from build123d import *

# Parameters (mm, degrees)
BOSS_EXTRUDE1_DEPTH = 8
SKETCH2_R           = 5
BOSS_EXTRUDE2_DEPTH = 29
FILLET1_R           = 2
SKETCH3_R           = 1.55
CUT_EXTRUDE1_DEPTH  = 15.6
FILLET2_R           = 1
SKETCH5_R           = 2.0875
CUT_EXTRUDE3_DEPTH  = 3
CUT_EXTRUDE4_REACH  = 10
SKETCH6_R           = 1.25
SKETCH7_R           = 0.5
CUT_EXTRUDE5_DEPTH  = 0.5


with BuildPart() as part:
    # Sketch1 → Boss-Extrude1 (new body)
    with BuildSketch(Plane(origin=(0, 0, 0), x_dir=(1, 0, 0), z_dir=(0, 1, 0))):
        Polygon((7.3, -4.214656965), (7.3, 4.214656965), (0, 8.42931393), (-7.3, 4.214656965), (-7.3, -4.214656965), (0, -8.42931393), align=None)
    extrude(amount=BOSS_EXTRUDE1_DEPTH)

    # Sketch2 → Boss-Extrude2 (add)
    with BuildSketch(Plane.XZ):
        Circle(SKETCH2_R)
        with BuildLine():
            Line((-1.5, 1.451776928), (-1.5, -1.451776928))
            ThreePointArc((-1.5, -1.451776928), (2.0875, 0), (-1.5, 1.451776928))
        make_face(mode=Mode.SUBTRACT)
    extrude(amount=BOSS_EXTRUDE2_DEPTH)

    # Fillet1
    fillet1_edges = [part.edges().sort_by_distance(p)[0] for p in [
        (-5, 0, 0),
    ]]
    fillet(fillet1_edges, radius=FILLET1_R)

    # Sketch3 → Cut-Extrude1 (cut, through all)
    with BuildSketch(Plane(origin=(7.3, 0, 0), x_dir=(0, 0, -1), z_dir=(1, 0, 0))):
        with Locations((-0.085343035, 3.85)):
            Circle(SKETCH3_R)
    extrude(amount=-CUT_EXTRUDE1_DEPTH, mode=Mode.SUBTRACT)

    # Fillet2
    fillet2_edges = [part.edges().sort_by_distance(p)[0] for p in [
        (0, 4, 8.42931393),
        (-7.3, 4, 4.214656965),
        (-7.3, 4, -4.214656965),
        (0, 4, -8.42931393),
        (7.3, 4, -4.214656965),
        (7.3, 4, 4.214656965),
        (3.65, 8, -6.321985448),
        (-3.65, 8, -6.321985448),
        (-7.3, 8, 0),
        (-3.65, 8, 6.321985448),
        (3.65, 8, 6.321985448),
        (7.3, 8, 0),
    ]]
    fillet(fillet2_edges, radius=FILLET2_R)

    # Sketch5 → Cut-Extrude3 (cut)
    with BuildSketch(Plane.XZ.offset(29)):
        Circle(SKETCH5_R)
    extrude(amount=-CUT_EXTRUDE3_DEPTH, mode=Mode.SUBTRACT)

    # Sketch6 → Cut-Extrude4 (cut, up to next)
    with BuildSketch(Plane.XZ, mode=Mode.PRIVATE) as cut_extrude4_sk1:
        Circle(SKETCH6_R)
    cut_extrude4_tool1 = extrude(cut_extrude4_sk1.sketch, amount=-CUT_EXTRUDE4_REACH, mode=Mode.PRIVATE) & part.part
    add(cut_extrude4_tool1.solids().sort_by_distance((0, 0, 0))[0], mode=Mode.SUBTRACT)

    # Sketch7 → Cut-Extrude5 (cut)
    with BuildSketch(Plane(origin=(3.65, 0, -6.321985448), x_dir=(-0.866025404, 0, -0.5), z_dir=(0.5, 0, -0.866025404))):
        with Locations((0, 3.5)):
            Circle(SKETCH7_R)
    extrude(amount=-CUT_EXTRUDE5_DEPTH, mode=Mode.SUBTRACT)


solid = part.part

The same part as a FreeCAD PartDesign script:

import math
import FreeCAD as App
import Part
import Sketcher
Q = App.Units.Quantity


def edges_at(feature, points):
    """Names of the edges that pass closest to the given points."""
    edges = feature.Shape.Edges
    near = lambda p: min(range(len(edges)), key=lambda i: edges[i].distToShape(Part.Vertex(*p))[0])
    return sorted({f"Edge{near(p) + 1}" for p in points})

doc = App.newDocument("Part")
params = doc.addObject("Spreadsheet::Sheet", "Params")
for row, (alias, value) in enumerate([
    ("pad1_length", "8 mm"),
    ("sketch2_diameter", "10 mm"),
    ("pad2_length", "29 mm"),
    ("fillet_radius", "2 mm"),
    ("sketch3_diameter", "3.1 mm"),
    ("fillet2_radius", "1 mm"),
    ("pocket2_length", "3 mm"),
    ("sketch5_diameter", "2.5 mm"),
    ("sketch6_diameter", "1 mm"),
    ("pocket4_length", "0.5 mm"),
], start=1):
    params.set(f"A{row}", alias)
    params.set(f"B{row}", "=" + value)
    params.setAlias(f"B{row}", alias)

body = doc.addObject("PartDesign::Body", "Body")

# Sketch on XZ plane
sketch1 = doc.addObject("Sketcher::SketchObject", "Sketch")
body.addObject(sketch1)
sketch1.AttachmentSupport = (doc.XZ_Plane, [""])
sketch1.MapMode = "FlatFace"
sketch1.addGeometry(Part.LineSegment(App.Vector(7, 4, 0), App.Vector(7, -4, 0)), False)
sketch1.addGeometry(Part.LineSegment(App.Vector(7, -4, 0), App.Vector(0, -8, 0)), False)
sketch1.addGeometry(Part.LineSegment(App.Vector(0, -8, 0), App.Vector(-7, -4, 0)), False)
sketch1.addGeometry(Part.LineSegment(App.Vector(-7, -4, 0), App.Vector(-7, 4, 0)), False)
sketch1.addGeometry(Part.LineSegment(App.Vector(-7, 4, 0), App.Vector(0, 8, 0)), False)
sketch1.addGeometry(Part.LineSegment(App.Vector(0, 8, 0), App.Vector(7, 4, 0)), False)
sketch1.addConstraint(Sketcher.Constraint("Coincident", 0, 2, 1, 1))
sketch1.addConstraint(Sketcher.Constraint("Coincident", 1, 2, 2, 1))
sketch1.addConstraint(Sketcher.Constraint("Coincident", 2, 2, 3, 1))
sketch1.addConstraint(Sketcher.Constraint("Coincident", 3, 2, 4, 1))
sketch1.addConstraint(Sketcher.Constraint("Coincident", 4, 2, 5, 1))
sketch1.addConstraint(Sketcher.Constraint("Coincident", 5, 2, 0, 1))
sketch1.addConstraint(Sketcher.Constraint("Vertical", 0))
sketch1.addConstraint(Sketcher.Constraint("Vertical", 3))
sketch1.addConstraint(Sketcher.Constraint("Symmetric", 0, 2, 3, 2, -1, 1))
sketch1.addConstraint(Sketcher.Constraint("Symmetric", 1, 2, 4, 2, -1, 1))
sketch1.addConstraint(Sketcher.Constraint("PointOnObject", 1, 2, -2))
sketch1.addConstraint(Sketcher.Constraint("Parallel", 2, 5))
sketch1.addConstraint(Sketcher.Constraint("Horizontal", 0, 2, 2, 2))
sketch1.addConstraint(Sketcher.Constraint("Angle", 1, Q("-150 deg")))
sketch1.addConstraint(Sketcher.Constraint("DistanceX", -1, 1, 0, 2, 7.3))
sketch1.addConstraint(Sketcher.Constraint("DistanceY", 0, 2, 0, 1, 8.429314))
pad1 = doc.addObject("PartDesign::Pad", "Pad")
body.addObject(pad1)
pad1.Profile = sketch1
pad1.setExpression("Length", "Params.pad1_length")
pad1.Reversed = True

# Sketch on XZ plane
sketch2 = doc.addObject("Sketcher::SketchObject", "Sketch001")
body.addObject(sketch2)
sketch2.AttachmentSupport = (doc.XZ_Plane, [""])
sketch2.MapMode = "FlatFace"
sketch2.addGeometry(Part.Circle(App.Vector(0, 0, 0), App.Vector(0, 0, 1), 5), False)
sketch2.addGeometry(Part.LineSegment(App.Vector(-1.5, -1.5, 0), App.Vector(-1.5, 1.5, 0)), False)
sketch2.addGeometry(Part.ArcOfCircle(Part.Circle(App.Vector(0, 0, 0), App.Vector(0, 0, 1), 2.1), math.radians(-136), math.radians(136)), False)
sketch2.addConstraint(Sketcher.Constraint("Coincident", 1, 1, 2, 1))
sketch2.addConstraint(Sketcher.Constraint("Coincident", 2, 2, 1, 2))
sketch2.addConstraint(Sketcher.Constraint("Vertical", 1))
sketch2.addConstraint(Sketcher.Constraint("Coincident", 0, 3, -1, 1))
sketch2.addConstraint(Sketcher.Constraint("Coincident", 2, 3, -1, 1))
sketch2.addConstraint(Sketcher.Constraint("Diameter", 0, 10.0))
sketch2.addConstraint(Sketcher.Constraint("DistanceX", 1, 1, -1, 1, 1.5))
sketch2.addConstraint(Sketcher.Constraint("Radius", 2, 2.0875))
sketch2.setExpression("Constraints[5]", "Params.sketch2_diameter")
pad2 = doc.addObject("PartDesign::Pad", "Pad001")
body.addObject(pad2)
pad2.Profile = sketch2
pad2.setExpression("Length", "Params.pad2_length")
doc.recompute()

fillet = doc.addObject("PartDesign::Fillet", "Fillet")
body.addObject(fillet)
fillet.Base = (pad2, edges_at(pad2, [(-5, 0, 0)]))
fillet.setExpression("Radius", "Params.fillet_radius")

# Sketch on YZ plane
sketch3 = doc.addObject("Sketcher::SketchObject", "Sketch002")
body.addObject(sketch3)
sketch3.AttachmentSupport = (doc.YZ_Plane, [""])
sketch3.MapMode = "FlatFace"
sketch3.AttachmentOffset = App.Placement(App.Vector(0, 0, 7.3), App.Rotation())
sketch3.addGeometry(Part.Circle(App.Vector(3.9, 0.1, 0), App.Vector(0, 0, 1), 1.6), False)
sketch3.addConstraint(Sketcher.Constraint("Diameter", 0, 3.1))
sketch3.addConstraint(Sketcher.Constraint("DistanceX", -1, 1, 0, 3, 3.85))
sketch3.addConstraint(Sketcher.Constraint("DistanceY", -1, 1, 0, 3, 0.085343))
sketch3.setExpression("Constraints[0]", "Params.sketch3_diameter")
pocket1 = doc.addObject("PartDesign::Pocket", "Pocket")
body.addObject(pocket1)
pocket1.Profile = sketch3
pocket1.Type = "ThroughAll"
doc.recompute()

fillet2 = doc.addObject("PartDesign::Fillet", "Fillet001")
body.addObject(fillet2)
fillet2.Base = (pocket1, edges_at(pocket1, [
    (0, 4, 8.429),
    (-7.3, 4, 4.215),
    (-7.3, 4, -4.215),
    (0, 4, -8.429),
    (7.3, 4, -4.215),
    (7.3, 4, 4.215),
    (3.65, 8, -6.322),
    (-3.65, 8, -6.322),
    (-7.3, 8, 0),
    (-3.65, 8, 6.322),
    (3.65, 8, 6.322),
    (7.3, 8, 0),
]))
fillet2.setExpression("Radius", "Params.fillet2_radius")

# Sketch on XZ plane
sketch4 = doc.addObject("Sketcher::SketchObject", "Sketch003")
body.addObject(sketch4)
sketch4.AttachmentSupport = (doc.XZ_Plane, [""])
sketch4.MapMode = "FlatFace"
sketch4.AttachmentOffset = App.Placement(App.Vector(0, 0, 29), App.Rotation())
sketch4.addGeometry(Part.Circle(App.Vector(0, 0, 0), App.Vector(0, 0, 1), 2.1), False)
sketch4.addConstraint(Sketcher.Constraint("Coincident", 0, 3, -1, 1))
sketch4.addConstraint(Sketcher.Constraint("Diameter", 0, 4.175))
pocket2 = doc.addObject("PartDesign::Pocket", "Pocket001")
body.addObject(pocket2)
pocket2.Profile = sketch4
pocket2.setExpression("Length", "Params.pocket2_length")

# Sketch on XZ plane
sketch5 = doc.addObject("Sketcher::SketchObject", "Sketch004")
body.addObject(sketch5)
sketch5.AttachmentSupport = (doc.XZ_Plane, [""])
sketch5.MapMode = "FlatFace"
sketch5.addGeometry(Part.Circle(App.Vector(0, 0, 0), App.Vector(0, 0, 1), 1.2), False)
sketch5.addConstraint(Sketcher.Constraint("Coincident", 0, 3, -1, 1))
sketch5.addConstraint(Sketcher.Constraint("Diameter", 0, 2.5))
sketch5.setExpression("Constraints[1]", "Params.sketch5_diameter")
pocket3 = doc.addObject("PartDesign::Pocket", "Pocket002")
body.addObject(pocket3)
pocket3.Profile = sketch5
pocket3.Type = "UpToFirst"

# Sketch on an angled plane
sketch6 = doc.addObject("Sketcher::SketchObject", "Sketch005")
body.addObject(sketch6)
sketch6.Placement = App.Placement(App.Vector(3.65, 0, -6.321985), App.Rotation(App.Vector(-0.866025404, 0, -0.5), App.Vector(0, 1, 0), App.Vector(0.5, 0, -0.866025404), "ZXY"))
sketch6.addGeometry(Part.Circle(App.Vector(0, 3.5, 0), App.Vector(0, 0, 1), 0.5), False)
sketch6.addConstraint(Sketcher.Constraint("PointOnObject", 0, 3, -2))
sketch6.addConstraint(Sketcher.Constraint("Diameter", 0, 1.0))
sketch6.addConstraint(Sketcher.Constraint("DistanceY", -1, 1, 0, 3, 3.5))
sketch6.setExpression("Constraints[1]", "Params.sketch6_diameter")
pocket4 = doc.addObject("PartDesign::Pocket", "Pocket003")
body.addObject(pocket4)
pocket4.Profile = sketch6
pocket4.setExpression("Length", "Params.pocket4_length")

doc.recompute()
